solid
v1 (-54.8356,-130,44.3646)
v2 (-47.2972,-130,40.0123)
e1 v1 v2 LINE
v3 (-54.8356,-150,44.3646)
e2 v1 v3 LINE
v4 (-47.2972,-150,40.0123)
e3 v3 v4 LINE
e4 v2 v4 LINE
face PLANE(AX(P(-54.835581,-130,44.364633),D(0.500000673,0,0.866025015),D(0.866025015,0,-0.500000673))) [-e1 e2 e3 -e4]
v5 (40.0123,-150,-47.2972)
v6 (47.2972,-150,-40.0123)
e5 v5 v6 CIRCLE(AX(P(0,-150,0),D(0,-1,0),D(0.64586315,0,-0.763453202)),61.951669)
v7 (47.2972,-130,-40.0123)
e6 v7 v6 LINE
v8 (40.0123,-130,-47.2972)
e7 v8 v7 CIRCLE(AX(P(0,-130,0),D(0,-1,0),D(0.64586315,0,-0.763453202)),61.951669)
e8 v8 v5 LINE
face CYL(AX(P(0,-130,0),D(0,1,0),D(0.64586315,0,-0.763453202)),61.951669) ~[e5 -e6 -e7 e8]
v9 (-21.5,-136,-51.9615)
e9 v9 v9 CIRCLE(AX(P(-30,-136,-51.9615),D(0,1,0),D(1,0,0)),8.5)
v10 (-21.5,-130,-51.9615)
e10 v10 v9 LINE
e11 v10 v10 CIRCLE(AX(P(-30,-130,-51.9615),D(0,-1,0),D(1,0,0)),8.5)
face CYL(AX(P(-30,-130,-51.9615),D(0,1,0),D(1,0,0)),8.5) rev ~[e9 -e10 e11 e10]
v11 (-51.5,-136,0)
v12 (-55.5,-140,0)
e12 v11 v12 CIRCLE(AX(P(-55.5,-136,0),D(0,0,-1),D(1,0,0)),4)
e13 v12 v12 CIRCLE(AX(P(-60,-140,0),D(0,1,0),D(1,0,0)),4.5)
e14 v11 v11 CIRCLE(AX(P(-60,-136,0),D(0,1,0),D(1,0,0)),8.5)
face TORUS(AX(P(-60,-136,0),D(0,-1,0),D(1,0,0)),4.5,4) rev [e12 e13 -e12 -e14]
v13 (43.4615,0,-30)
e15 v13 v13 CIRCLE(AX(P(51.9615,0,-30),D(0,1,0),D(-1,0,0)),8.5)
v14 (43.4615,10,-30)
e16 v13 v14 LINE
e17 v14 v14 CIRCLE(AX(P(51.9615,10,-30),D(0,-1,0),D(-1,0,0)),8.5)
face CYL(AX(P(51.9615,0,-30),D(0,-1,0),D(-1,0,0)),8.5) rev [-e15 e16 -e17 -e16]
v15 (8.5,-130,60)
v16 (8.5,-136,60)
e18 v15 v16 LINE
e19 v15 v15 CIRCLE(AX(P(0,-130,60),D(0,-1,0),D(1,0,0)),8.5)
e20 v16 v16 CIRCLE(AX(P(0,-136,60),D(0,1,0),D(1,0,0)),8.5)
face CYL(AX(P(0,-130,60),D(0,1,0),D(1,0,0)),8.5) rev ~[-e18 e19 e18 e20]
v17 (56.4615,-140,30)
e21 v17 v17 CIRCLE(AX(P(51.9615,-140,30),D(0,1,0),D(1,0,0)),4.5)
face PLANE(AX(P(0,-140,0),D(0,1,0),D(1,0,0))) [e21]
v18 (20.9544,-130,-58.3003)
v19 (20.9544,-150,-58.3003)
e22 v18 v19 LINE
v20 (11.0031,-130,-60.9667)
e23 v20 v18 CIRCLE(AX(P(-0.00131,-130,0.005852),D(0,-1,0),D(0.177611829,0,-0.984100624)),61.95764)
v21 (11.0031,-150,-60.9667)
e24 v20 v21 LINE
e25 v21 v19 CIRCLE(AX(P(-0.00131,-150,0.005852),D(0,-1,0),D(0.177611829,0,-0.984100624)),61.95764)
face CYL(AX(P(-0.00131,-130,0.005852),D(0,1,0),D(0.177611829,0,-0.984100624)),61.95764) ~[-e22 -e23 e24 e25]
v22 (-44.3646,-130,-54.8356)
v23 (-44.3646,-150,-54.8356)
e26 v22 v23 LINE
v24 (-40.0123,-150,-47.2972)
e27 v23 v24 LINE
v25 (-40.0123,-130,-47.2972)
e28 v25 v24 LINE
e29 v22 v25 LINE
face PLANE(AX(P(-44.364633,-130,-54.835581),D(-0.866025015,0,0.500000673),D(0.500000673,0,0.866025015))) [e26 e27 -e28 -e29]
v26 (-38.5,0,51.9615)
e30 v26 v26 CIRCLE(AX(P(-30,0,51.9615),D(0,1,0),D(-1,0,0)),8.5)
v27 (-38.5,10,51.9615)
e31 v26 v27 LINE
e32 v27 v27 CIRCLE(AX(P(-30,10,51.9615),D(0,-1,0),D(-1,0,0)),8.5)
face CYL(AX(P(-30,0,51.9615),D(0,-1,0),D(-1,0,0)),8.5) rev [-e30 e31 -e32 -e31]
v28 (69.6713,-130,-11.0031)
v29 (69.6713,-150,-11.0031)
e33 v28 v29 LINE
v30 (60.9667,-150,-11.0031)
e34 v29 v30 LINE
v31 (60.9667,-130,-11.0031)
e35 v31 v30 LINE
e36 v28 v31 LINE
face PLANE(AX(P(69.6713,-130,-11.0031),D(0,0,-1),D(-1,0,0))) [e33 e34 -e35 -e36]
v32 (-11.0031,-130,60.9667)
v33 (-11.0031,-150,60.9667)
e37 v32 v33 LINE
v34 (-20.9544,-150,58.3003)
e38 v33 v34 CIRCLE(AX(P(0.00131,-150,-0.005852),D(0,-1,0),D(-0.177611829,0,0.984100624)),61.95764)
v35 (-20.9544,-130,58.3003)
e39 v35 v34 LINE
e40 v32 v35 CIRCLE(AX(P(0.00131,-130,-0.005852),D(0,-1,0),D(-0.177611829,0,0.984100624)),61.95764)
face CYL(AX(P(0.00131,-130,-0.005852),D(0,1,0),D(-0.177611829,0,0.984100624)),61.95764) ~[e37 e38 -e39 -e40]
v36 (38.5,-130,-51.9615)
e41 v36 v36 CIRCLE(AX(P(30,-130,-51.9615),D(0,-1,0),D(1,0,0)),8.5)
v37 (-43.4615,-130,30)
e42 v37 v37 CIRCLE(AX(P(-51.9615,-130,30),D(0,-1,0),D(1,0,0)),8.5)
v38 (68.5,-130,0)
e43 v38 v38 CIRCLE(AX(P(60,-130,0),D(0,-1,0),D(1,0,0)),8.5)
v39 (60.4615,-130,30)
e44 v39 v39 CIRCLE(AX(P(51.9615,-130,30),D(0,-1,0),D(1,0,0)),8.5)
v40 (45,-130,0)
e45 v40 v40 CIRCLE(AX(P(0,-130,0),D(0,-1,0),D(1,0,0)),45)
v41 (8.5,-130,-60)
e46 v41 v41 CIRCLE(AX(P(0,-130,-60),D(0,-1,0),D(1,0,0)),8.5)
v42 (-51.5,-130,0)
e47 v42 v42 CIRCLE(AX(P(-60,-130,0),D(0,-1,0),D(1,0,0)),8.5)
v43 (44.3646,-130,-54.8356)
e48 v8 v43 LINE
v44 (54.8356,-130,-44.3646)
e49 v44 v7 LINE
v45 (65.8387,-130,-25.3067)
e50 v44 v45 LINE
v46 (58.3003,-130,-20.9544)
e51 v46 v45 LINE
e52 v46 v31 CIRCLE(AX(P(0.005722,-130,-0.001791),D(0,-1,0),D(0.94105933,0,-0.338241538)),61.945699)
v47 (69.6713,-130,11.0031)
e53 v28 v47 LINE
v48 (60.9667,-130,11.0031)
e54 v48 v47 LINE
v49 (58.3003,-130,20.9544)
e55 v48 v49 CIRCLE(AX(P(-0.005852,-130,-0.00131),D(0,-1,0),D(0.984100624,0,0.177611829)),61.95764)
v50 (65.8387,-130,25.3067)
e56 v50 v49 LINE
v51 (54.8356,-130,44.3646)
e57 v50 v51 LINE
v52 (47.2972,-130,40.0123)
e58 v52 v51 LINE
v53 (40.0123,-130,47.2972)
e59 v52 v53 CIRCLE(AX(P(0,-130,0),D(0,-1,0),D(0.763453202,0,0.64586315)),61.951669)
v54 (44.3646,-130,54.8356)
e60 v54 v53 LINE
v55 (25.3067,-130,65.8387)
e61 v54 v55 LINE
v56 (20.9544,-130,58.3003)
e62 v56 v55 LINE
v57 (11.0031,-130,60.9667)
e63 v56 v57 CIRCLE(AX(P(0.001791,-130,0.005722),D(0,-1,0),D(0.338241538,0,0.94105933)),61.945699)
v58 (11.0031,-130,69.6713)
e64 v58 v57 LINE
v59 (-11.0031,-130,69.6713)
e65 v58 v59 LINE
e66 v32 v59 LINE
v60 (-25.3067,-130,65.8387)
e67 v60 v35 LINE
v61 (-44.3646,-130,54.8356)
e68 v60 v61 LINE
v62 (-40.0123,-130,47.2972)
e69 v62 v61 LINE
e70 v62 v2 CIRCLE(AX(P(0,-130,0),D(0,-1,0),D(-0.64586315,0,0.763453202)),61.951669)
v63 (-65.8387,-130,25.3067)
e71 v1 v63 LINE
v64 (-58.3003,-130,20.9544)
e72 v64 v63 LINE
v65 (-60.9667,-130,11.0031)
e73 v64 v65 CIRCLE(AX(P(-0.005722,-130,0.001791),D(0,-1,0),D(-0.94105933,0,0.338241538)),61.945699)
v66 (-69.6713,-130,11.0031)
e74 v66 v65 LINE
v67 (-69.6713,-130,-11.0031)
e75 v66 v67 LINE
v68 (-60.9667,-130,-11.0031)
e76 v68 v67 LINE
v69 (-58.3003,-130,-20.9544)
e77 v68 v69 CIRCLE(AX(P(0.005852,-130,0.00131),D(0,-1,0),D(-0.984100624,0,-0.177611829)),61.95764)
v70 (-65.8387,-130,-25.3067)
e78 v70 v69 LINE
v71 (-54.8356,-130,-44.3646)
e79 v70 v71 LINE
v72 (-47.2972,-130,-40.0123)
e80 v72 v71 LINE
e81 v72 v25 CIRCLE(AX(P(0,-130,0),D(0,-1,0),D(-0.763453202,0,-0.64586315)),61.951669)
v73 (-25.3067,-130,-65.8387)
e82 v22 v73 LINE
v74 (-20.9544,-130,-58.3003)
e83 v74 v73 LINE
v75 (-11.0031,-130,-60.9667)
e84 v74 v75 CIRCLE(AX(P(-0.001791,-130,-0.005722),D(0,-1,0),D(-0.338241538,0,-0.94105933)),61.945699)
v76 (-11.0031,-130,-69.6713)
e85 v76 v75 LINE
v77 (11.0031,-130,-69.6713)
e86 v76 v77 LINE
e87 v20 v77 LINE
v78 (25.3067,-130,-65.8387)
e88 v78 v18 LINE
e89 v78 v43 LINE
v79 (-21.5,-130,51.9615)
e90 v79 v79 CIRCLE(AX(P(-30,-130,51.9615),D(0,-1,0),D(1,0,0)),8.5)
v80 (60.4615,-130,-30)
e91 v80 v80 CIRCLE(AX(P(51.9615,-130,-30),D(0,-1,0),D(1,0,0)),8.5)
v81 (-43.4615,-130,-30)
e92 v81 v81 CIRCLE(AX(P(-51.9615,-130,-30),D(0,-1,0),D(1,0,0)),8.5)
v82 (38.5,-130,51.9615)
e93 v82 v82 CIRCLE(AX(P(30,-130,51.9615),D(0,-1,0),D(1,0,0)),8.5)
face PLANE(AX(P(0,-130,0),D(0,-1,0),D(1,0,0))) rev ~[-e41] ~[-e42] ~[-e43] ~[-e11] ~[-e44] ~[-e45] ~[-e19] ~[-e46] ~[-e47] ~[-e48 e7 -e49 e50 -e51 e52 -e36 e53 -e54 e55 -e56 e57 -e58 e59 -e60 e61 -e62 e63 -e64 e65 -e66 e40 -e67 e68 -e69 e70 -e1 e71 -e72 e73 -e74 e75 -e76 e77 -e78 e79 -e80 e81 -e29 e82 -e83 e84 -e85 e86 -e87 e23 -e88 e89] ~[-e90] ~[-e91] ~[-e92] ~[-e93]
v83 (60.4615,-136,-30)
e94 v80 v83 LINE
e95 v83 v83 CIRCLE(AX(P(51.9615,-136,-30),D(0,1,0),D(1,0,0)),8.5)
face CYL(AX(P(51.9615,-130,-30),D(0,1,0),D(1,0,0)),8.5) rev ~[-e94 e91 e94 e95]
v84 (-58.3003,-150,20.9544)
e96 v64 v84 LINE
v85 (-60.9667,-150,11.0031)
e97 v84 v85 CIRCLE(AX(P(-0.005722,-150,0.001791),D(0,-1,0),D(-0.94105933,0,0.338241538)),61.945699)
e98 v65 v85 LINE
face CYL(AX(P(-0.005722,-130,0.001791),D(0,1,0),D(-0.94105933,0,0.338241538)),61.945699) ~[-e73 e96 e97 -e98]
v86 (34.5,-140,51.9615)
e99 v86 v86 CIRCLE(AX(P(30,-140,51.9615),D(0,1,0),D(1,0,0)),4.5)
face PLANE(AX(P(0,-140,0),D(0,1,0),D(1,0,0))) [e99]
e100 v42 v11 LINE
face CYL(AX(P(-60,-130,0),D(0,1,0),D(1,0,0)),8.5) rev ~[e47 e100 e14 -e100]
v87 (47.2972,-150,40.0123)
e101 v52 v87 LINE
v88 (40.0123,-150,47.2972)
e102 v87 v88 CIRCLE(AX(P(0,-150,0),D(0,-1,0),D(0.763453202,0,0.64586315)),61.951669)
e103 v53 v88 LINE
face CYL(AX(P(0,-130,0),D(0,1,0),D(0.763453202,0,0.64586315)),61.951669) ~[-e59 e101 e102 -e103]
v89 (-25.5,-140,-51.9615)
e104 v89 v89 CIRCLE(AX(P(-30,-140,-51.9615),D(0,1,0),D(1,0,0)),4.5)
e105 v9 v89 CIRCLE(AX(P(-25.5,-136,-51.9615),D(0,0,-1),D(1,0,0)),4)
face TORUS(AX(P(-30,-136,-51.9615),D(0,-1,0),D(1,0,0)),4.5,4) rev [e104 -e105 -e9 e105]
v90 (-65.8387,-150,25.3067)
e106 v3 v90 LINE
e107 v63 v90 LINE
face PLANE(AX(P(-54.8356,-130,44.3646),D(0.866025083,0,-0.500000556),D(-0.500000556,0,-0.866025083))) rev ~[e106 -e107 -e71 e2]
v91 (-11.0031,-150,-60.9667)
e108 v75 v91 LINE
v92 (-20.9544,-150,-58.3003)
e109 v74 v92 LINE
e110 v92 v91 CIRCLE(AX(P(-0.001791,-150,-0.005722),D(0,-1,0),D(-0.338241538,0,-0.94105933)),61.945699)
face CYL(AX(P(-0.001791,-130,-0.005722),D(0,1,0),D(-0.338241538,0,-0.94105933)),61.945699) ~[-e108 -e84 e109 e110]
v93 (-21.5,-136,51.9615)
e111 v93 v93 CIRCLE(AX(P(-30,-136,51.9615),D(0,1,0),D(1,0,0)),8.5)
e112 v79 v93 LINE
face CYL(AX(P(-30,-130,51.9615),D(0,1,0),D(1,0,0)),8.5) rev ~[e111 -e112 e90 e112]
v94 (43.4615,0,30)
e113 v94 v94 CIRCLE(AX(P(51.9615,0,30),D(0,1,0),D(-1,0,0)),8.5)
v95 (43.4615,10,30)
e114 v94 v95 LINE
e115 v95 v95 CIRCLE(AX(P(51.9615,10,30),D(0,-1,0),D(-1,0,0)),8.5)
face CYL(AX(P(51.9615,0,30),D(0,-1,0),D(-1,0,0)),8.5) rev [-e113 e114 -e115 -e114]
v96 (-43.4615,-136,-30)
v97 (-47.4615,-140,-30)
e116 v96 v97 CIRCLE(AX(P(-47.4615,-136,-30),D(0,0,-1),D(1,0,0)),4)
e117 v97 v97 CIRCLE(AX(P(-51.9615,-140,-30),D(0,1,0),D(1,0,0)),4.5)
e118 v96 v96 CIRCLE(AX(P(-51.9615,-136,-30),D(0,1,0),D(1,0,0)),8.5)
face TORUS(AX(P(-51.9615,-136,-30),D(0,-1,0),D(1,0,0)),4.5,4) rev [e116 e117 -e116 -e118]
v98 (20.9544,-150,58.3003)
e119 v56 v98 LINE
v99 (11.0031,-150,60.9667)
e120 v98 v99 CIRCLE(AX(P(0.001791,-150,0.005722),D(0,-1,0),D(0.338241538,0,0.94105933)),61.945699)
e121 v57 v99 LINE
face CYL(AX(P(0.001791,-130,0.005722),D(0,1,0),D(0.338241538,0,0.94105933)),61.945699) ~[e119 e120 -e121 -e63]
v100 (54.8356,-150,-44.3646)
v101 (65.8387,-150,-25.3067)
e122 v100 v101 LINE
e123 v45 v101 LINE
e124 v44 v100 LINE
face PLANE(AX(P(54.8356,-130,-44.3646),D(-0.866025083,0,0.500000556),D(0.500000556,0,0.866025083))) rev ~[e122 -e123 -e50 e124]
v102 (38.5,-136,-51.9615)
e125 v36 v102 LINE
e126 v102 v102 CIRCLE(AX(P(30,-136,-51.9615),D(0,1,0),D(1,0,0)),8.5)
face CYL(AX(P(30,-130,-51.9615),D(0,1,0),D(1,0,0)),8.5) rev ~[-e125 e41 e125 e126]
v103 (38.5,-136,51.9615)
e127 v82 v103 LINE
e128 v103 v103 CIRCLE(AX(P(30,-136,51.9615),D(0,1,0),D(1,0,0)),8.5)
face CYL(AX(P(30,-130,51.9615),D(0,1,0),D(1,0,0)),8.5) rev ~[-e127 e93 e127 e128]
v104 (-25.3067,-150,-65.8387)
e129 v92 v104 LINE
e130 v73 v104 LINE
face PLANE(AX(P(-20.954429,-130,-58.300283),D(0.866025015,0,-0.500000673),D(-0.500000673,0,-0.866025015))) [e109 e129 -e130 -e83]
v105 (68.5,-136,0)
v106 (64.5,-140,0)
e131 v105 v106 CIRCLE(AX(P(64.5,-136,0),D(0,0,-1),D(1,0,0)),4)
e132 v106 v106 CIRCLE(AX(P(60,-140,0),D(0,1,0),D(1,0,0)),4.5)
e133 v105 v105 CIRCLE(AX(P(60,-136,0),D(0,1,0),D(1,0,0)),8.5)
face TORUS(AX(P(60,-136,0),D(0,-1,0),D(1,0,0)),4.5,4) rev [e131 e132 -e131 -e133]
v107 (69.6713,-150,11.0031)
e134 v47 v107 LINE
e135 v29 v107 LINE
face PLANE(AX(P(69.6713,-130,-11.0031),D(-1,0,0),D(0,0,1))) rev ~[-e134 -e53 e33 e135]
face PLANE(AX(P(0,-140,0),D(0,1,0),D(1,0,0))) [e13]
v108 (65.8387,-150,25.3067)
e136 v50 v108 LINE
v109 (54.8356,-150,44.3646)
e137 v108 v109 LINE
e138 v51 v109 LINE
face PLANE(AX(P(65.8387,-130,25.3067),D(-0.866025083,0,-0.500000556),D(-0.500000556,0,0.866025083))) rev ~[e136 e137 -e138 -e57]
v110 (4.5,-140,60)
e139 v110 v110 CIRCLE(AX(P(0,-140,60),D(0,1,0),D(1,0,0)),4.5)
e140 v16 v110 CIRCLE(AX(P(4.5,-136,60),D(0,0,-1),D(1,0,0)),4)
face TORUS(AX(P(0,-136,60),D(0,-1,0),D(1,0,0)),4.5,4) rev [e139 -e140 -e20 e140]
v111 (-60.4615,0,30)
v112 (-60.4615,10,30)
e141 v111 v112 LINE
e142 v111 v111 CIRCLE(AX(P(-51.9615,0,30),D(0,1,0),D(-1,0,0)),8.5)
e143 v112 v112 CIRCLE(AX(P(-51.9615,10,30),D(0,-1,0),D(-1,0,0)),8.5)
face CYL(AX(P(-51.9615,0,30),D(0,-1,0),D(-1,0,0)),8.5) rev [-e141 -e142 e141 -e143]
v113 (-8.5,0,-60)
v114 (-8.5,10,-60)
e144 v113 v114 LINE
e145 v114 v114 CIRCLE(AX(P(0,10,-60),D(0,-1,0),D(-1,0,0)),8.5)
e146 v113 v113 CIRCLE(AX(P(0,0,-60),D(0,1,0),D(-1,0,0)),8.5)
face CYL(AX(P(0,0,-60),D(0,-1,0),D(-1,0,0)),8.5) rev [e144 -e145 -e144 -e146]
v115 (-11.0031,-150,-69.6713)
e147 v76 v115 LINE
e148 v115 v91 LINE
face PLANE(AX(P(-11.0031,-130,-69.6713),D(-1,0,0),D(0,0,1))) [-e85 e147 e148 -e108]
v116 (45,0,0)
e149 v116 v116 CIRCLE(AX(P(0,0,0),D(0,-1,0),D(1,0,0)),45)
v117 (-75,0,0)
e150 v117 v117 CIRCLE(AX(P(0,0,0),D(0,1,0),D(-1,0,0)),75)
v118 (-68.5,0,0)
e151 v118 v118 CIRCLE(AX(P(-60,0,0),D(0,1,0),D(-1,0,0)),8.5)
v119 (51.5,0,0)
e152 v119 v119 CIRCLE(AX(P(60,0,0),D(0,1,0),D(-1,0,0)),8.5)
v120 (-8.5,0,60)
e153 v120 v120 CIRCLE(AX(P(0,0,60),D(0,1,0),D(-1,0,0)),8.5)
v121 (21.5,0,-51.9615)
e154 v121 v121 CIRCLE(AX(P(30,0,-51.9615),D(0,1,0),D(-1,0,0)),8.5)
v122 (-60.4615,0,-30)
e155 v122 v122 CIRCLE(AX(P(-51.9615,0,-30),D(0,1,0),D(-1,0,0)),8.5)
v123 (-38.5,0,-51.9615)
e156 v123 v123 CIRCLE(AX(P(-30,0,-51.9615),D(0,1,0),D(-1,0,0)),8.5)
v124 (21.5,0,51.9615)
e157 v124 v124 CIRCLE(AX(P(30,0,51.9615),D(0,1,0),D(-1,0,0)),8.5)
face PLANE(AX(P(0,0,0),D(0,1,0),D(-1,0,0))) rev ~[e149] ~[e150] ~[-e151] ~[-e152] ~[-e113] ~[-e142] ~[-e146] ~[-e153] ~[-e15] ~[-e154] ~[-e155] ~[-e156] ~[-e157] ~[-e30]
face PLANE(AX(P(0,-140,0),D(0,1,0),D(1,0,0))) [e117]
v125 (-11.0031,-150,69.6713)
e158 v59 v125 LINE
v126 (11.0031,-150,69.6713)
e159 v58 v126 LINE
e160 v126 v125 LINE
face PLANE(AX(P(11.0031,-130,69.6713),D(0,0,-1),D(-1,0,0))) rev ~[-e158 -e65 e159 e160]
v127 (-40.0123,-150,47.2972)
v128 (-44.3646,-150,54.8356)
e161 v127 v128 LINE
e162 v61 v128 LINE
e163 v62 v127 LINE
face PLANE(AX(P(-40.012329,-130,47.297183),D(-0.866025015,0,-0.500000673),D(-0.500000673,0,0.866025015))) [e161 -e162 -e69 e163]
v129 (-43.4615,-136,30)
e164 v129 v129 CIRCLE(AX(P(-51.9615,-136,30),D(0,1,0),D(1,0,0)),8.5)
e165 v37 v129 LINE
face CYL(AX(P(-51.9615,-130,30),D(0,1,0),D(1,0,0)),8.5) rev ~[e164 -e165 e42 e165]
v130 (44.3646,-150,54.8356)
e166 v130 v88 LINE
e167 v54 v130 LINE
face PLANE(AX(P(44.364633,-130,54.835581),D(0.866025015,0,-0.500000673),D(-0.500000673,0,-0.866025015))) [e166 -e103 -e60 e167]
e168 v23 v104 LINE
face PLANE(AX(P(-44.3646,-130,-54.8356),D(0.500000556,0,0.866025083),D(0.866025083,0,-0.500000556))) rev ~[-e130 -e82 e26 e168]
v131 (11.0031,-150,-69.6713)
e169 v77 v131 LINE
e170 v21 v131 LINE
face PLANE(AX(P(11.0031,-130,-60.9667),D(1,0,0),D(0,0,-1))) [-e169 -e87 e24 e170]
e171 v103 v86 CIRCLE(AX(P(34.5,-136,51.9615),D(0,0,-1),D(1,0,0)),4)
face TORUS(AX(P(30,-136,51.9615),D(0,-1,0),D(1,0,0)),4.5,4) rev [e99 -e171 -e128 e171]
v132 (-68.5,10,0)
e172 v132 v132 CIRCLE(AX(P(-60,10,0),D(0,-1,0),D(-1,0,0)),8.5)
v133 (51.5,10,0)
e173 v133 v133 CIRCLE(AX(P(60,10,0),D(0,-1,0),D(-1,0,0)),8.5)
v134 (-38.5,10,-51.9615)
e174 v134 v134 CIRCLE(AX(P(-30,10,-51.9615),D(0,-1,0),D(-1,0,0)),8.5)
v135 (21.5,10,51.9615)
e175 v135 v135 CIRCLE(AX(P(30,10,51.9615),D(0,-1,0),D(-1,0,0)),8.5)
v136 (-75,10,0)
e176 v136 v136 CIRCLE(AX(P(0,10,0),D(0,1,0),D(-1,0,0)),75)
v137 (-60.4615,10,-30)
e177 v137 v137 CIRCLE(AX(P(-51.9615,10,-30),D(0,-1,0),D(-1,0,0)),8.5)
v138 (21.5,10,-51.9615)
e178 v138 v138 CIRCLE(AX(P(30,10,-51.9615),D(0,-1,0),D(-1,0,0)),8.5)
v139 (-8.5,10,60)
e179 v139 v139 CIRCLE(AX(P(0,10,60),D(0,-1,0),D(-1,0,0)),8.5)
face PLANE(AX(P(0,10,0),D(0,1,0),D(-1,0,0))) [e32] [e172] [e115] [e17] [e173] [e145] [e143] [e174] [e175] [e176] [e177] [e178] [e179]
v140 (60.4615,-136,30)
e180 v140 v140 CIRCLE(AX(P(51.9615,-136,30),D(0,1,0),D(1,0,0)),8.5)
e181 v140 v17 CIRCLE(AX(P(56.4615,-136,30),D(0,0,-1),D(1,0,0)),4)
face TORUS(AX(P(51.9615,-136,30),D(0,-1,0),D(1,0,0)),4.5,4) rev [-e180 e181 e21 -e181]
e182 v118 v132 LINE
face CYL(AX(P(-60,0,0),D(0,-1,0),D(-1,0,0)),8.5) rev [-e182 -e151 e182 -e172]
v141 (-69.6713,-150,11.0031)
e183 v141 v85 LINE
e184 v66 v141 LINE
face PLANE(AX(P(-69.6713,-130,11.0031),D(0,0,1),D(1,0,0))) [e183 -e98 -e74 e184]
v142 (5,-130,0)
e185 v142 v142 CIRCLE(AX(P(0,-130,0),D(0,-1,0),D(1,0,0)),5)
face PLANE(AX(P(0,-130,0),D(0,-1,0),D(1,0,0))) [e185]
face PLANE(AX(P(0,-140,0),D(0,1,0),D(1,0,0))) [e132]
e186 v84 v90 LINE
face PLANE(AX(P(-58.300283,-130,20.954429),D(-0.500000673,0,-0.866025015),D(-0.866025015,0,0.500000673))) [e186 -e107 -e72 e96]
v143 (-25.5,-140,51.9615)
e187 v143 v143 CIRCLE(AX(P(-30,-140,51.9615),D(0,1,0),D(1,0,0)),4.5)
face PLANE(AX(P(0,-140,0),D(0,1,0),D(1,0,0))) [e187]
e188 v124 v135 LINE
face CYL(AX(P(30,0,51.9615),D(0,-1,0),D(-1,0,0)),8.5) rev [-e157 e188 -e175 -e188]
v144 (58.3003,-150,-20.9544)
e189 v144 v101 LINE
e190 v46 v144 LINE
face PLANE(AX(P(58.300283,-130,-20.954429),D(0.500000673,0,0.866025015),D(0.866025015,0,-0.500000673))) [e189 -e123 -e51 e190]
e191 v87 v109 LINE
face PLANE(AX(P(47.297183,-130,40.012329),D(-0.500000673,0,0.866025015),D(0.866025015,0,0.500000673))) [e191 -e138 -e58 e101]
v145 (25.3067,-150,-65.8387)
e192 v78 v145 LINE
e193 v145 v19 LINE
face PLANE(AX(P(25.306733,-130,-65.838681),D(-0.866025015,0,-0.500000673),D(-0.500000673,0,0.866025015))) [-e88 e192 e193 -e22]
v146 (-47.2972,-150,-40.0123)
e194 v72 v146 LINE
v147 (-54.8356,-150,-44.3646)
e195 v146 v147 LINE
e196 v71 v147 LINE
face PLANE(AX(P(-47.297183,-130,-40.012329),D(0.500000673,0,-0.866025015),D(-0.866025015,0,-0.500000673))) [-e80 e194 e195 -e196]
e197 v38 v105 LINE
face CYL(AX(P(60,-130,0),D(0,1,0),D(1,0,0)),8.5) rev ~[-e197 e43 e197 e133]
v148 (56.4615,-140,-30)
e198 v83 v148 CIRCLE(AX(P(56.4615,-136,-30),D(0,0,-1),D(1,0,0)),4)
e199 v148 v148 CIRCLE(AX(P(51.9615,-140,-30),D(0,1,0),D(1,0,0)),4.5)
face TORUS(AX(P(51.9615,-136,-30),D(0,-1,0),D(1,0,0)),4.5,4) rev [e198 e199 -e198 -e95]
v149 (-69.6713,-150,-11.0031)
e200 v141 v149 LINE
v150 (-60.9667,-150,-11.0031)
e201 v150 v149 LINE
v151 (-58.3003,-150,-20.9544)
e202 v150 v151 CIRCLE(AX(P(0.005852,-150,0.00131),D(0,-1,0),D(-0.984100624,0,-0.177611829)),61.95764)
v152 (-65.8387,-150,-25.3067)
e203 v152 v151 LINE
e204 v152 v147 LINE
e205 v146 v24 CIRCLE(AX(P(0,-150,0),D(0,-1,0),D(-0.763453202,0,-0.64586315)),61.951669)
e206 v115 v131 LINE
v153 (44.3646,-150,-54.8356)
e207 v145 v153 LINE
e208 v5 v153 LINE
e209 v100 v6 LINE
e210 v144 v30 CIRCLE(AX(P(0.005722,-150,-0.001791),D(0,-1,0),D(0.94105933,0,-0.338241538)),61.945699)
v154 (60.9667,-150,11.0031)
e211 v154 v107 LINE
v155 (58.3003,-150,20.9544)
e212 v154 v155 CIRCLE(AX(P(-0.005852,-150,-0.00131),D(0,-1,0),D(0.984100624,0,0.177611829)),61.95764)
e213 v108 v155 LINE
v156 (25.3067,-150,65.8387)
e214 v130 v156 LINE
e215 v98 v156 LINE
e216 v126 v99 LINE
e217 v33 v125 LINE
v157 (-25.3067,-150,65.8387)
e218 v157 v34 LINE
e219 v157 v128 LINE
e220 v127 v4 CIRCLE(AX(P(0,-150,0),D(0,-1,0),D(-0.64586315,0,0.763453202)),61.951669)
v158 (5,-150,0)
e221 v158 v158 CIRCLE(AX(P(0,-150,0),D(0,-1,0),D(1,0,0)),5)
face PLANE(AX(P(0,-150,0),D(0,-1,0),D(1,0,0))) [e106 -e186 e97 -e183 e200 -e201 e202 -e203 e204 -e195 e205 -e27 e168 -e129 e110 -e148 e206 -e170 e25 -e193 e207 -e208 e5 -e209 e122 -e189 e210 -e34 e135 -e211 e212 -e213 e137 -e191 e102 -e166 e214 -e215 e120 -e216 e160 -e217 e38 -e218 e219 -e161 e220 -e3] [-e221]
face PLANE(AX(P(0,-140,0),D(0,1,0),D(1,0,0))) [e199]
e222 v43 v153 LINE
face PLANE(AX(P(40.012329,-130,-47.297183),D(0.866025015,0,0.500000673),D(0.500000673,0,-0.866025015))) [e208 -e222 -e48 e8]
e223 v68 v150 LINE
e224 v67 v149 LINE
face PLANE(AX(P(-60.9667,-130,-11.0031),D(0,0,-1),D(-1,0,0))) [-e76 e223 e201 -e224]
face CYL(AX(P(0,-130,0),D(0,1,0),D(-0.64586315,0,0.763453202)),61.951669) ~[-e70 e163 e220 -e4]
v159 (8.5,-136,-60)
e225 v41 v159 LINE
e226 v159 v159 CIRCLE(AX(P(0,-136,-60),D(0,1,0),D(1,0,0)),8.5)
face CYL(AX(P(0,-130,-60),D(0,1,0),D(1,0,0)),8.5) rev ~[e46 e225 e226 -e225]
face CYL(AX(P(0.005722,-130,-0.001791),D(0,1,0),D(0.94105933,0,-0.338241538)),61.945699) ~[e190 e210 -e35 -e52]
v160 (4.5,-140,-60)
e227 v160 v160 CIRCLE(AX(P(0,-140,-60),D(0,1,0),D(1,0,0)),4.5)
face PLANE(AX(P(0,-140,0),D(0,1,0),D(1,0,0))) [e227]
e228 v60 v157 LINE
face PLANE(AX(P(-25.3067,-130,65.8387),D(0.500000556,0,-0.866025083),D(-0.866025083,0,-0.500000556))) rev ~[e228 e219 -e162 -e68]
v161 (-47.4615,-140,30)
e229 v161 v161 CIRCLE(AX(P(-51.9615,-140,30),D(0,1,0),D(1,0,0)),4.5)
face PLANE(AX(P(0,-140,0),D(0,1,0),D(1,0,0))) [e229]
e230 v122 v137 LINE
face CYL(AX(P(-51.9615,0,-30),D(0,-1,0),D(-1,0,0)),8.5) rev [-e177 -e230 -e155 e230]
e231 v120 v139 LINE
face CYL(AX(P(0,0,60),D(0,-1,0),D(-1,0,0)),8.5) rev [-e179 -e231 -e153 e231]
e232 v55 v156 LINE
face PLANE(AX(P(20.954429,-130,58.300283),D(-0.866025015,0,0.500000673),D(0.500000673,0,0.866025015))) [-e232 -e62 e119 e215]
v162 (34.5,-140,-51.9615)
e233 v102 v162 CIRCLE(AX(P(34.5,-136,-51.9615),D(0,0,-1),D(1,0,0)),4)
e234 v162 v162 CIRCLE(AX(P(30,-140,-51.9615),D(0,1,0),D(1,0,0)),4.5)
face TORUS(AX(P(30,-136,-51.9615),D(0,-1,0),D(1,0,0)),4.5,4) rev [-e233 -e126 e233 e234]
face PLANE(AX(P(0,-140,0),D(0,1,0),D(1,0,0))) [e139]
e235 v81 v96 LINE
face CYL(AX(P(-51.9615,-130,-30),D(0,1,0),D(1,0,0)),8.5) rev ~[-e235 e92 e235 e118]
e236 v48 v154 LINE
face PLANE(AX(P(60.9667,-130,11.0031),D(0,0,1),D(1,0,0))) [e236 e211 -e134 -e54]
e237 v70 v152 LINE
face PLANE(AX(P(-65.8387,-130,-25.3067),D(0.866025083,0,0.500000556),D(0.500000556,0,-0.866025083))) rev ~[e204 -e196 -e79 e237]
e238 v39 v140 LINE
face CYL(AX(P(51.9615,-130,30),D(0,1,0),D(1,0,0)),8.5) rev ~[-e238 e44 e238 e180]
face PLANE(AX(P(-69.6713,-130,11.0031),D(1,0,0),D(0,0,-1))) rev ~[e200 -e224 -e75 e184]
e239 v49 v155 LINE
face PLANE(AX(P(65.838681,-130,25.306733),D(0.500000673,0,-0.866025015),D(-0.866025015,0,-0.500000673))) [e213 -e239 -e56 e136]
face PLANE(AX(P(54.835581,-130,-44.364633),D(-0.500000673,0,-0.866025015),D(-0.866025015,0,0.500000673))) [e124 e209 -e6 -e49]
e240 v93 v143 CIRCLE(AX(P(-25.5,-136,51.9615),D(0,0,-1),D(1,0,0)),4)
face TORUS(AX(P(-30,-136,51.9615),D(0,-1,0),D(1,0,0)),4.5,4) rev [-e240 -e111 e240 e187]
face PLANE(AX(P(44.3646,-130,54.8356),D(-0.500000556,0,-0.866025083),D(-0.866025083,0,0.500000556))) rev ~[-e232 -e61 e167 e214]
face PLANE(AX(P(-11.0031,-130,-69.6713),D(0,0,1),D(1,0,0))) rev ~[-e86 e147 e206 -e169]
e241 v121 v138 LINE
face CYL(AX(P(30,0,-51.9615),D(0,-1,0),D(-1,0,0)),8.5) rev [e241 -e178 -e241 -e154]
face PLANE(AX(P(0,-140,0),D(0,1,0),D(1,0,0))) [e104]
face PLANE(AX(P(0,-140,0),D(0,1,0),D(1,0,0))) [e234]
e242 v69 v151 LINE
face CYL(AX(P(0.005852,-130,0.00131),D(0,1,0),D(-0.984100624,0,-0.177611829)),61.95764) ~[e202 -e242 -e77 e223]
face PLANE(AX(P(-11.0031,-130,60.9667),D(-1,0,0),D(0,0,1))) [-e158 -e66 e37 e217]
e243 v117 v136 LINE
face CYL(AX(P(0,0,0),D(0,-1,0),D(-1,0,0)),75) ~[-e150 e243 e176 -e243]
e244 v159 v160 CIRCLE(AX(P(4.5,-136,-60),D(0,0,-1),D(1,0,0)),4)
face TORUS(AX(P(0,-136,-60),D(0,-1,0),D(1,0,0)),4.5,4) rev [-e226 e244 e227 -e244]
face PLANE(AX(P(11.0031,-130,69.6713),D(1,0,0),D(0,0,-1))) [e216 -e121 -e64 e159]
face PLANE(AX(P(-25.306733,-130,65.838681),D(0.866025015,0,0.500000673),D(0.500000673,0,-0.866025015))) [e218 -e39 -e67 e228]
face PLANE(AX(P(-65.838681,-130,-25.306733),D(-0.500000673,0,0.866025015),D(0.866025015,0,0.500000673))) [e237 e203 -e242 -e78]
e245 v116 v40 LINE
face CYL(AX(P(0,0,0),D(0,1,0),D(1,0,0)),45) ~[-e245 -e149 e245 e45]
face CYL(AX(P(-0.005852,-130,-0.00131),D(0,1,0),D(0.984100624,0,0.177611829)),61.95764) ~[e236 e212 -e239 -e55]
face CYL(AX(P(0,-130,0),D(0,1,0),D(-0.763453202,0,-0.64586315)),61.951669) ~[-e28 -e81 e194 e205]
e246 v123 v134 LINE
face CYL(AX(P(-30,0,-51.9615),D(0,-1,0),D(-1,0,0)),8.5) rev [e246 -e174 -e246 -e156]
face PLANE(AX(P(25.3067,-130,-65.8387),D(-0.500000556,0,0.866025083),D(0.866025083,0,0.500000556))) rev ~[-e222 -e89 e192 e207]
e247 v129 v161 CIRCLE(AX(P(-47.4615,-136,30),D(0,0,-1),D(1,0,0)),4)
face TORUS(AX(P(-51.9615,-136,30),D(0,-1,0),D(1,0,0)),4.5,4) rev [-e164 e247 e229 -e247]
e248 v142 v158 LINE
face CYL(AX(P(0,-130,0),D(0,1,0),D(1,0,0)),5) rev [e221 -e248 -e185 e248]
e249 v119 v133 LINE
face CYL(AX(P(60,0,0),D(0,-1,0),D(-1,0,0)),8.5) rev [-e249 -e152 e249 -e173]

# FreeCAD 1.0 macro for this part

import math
import FreeCAD as App
import Part
import Sketcher
Q = App.Units.Quantity


def edges_at(feature, points):
    """Names of the edges that pass closest to the given points."""
    edges = feature.Shape.Edges
    near = lambda p: min(range(len(edges)), key=lambda i: edges[i].distToShape(Part.Vertex(*p))[0])
    return sorted({f"Edge{near(p) + 1}" for p in points})

doc = App.newDocument("Part")
body = doc.addObject("PartDesign::Body", "Body")

sketch1 = doc.addObject("Sketcher::SketchObject", "Sketch")
body.addObject(sketch1)
sketch1.AttachmentSupport = (doc.XZ_Plane, [""])
sketch1.MapMode = "FlatFace"
sketch1.addGeometry([
    Part.Circle(App.Vector(0, 0, 0), App.Vector(0, 0, 1), 75),
    Part.Circle(App.Vector(-51.9615, 30, 0), App.Vector(0, 0, 1), 8.5),
    Part.Circle(App.Vector(-30, 51.9615, 0), App.Vector(0, 0, 1), 8.5),
    Part.Circle(App.Vector(0, 60, 0), App.Vector(0, 0, 1), 8.5),
    Part.Circle(App.Vector(30, 51.9615, 0), App.Vector(0, 0, 1), 8.5),
    Part.Circle(App.Vector(51.9615, 30, 0), App.Vector(0, 0, 1), 8.5),
    Part.Circle(App.Vector(60, 0, 0), App.Vector(0, 0, 1), 8.5),
    Part.Circle(App.Vector(51.9615, -30, 0), App.Vector(0, 0, 1), 8.5),
    Part.Circle(App.Vector(30, -51.9615, 0), App.Vector(0, 0, 1), 8.5),
    Part.Circle(App.Vector(0, -60, 0), App.Vector(0, 0, 1), 8.5),
    Part.Circle(App.Vector(-30, -51.9615, 0), App.Vector(0, 0, 1), 8.5),
    Part.Circle(App.Vector(-51.9615, -30, 0), App.Vector(0, 0, 1), 8.5),
    Part.Circle(App.Vector(-60, 0, 0), App.Vector(0, 0, 1), 8.5),
], False)
sketch1.addConstraint([
    Sketcher.Constraint("Coincident", 0, 3, -1, 1),
    Sketcher.Constraint("Equal", 1, 2),
    Sketcher.Constraint("Equal", 2, 3),
    Sketcher.Constraint("Equal", 3, 4),
    Sketcher.Constraint("Equal", 4, 5),
    Sketcher.Constraint("Equal", 5, 6),
    Sketcher.Constraint("Equal", 6, 7),
    Sketcher.Constraint("Equal", 7, 8),
    Sketcher.Constraint("Equal", 8, 9),
    Sketcher.Constraint("Equal", 9, 10),
    Sketcher.Constraint("Equal", 10, 11),
    Sketcher.Constraint("Equal", 11, 12),
    Sketcher.Constraint("Symmetric", 1, 3, 7, 3, -1, 1),
    Sketcher.Constraint("Symmetric", 2, 3, 8, 3, -1, 1),
    Sketcher.Constraint("Symmetric", 3, 3, 9, 3, -1, 1),
    Sketcher.Constraint("Symmetric", 4, 3, 10, 3, -1, 1),
    Sketcher.Constraint("Symmetric", 5, 3, 11, 3, -1, 1),
    Sketcher.Constraint("Symmetric", 6, 3, 12, 3, -1, 1),
    Sketcher.Constraint("Symmetric", 2, 3, 4, 3, -2),
    Sketcher.Constraint("Symmetric", 1, 3, 5, 3, -2),
    Sketcher.Constraint("PointOnObject", 3, 3, -2),
    Sketcher.Constraint("PointOnObject", 6, 3, -1),
    Sketcher.Constraint("Diameter", 0, Q("150 mm")),
    Sketcher.Constraint("Diameter", 1, Q("17 mm")),
    Sketcher.Constraint("DistanceY", -1, 1, 1, 3, Q("30 mm")),
    Sketcher.Constraint("DistanceX", 2, 3, -1, 1, Q("30 mm")),
    Sketcher.Constraint("DistanceY", -1, 1, 3, 3, Q("60 mm")),
    Sketcher.Constraint("DistanceX", -1, 1, 6, 3, Q("60 mm")),
    Sketcher.Constraint("DistanceX", 1, 3, 5, 3, Q("103.923 mm")),
    Sketcher.Constraint("DistanceY", 8, 3, 4, 3, Q("103.923 mm")),
])
pad1 = doc.addObject("PartDesign::Pad", "Pad")
body.addObject(pad1)
pad1.Profile = sketch1
pad1.Length = 10
pad1.Reversed = True

sketch2 = doc.addObject("Sketcher::SketchObject", "Sketch001")
body.addObject(sketch2)
sketch2.AttachmentSupport = (doc.XZ_Plane, [""])
sketch2.MapMode = "FlatFace"
sketch2.addGeometry(Part.Circle(App.Vector(0, 0, 0), App.Vector(0, 0, 1), 45), False)
sketch2.addConstraint([
    Sketcher.Constraint("Coincident", 0, 3, -1, 1),
    Sketcher.Constraint("Diameter", 0, Q("90 mm")),
])
pad2 = doc.addObject("PartDesign::Pad", "Pad001")
body.addObject(pad2)
pad2.Profile = sketch2
pad2.Length = 130

sketch3 = doc.addObject("Sketcher::SketchObject", "Sketch002")
body.addObject(sketch3)
sketch3.AttachmentSupport = (doc.XZ_Plane, [""])
sketch3.MapMode = "FlatFace"
sketch3.AttachmentOffset = App.Placement(App.Vector(0, 0, 130), App.Rotation())
sketch3.addGeometry([
    Part.LineSegment(App.Vector(11.0031, 69.6713, 0), App.Vector(-11.0031, 69.6713, 0)),
    Part.LineSegment(App.Vector(-11.0031, 69.6713, 0), App.Vector(-11.0031, 60.9667, 0)),
    Part.ArcOfCircle(Part.Circle(App.Vector(0.00131, -0.005852, 0), App.Vector(0, 0, 1), 61.95764), math.radians(100.230686), math.radians(109.768854)),
    Part.LineSegment(App.Vector(-20.954429, 58.300283, 0), App.Vector(-25.306733, 65.838681, 0)),
    Part.LineSegment(App.Vector(-25.3067, 65.8387, 0), App.Vector(-44.3646, 54.8356, 0)),
    Part.LineSegment(App.Vector(-44.364633, 54.835581, 0), App.Vector(-40.012329, 47.297183, 0)),
    Part.ArcOfCircle(Part.Circle(App.Vector(0, 0, 0), App.Vector(0, 0, 1), 61.951669), math.radians(130.230422), math.radians(139.769578)),
    Part.LineSegment(App.Vector(-47.297183, 40.012329, 0), App.Vector(-54.835581, 44.364633, 0)),
    Part.LineSegment(App.Vector(-54.8356, 44.3646, 0), App.Vector(-65.8387, 25.3067, 0)),
    Part.LineSegment(App.Vector(-65.838681, 25.306733, 0), App.Vector(-58.300283, 20.954429, 0)),
    Part.ArcOfCircle(Part.Circle(App.Vector(-0.005722, 0.001791, 0), App.Vector(0, 0, 1), 61.945699), math.radians(160.230225), math.radians(169.770235)),
    Part.LineSegment(App.Vector(-60.9667, 11.0031, 0), App.Vector(-69.6713, 11.0031, 0)),
    Part.LineSegment(App.Vector(-69.6713, 11.0031, 0), App.Vector(-69.6713, -11.0031, 0)),
    Part.LineSegment(App.Vector(-69.6713, -11.0031, 0), App.Vector(-60.9667, -11.0031, 0)),
    Part.ArcOfCircle(Part.Circle(App.Vector(0.005852, 0.00131, 0), App.Vector(0, 0, 1), 61.95764), math.radians(-169.769314), math.radians(-160.231146)),
    Part.LineSegment(App.Vector(-58.300283, -20.954429, 0), App.Vector(-65.838681, -25.306733, 0)),
    Part.LineSegment(App.Vector(-65.8387, -25.3067, 0), App.Vector(-54.8356, -44.3646, 0)),
    Part.LineSegment(App.Vector(-54.835581, -44.364633, 0), App.Vector(-47.297183, -40.012329, 0)),
    Part.ArcOfCircle(Part.Circle(App.Vector(0, 0, 0), App.Vector(0, 0, 1), 61.951669), math.radians(-139.769578), math.radians(-130.230422)),
    Part.LineSegment(App.Vector(-40.012329, -47.297183, 0), App.Vector(-44.364633, -54.835581, 0)),
    Part.LineSegment(App.Vector(-44.3646, -54.8356, 0), App.Vector(-25.3067, -65.8387, 0)),
    Part.LineSegment(App.Vector(-25.306733, -65.838681, 0), App.Vector(-20.954429, -58.300283, 0)),
    Part.ArcOfCircle(Part.Circle(App.Vector(-0.001791, -0.005722, 0), App.Vector(0, 0, 1), 61.945699), math.radians(-109.769775), math.radians(-100.229765)),
    Part.LineSegment(App.Vector(-11.0031, -60.9667, 0), App.Vector(-11.0031, -69.6713, 0)),
    Part.LineSegment(App.Vector(-11.0031, -69.6713, 0), App.Vector(11.0031, -69.6713, 0)),
    Part.LineSegment(App.Vector(11.0031, -69.6713, 0), App.Vector(11.0031, -60.9667, 0)),
    Part.ArcOfCircle(Part.Circle(App.Vector(-0.00131, 0.005852, 0), App.Vector(0, 0, 1), 61.95764), math.radians(-79.769314), math.radians(-70.231146)),
    Part.LineSegment(App.Vector(20.954429, -58.300283, 0), App.Vector(25.306733, -65.838681, 0)),
    Part.LineSegment(App.Vector(25.3067, -65.8387, 0), App.Vector(44.3646, -54.8356, 0)),
    Part.LineSegment(App.Vector(44.364633, -54.835581, 0), App.Vector(40.012329, -47.297183, 0)),
    Part.ArcOfCircle(Part.Circle(App.Vector(0, 0, 0), App.Vector(0, 0, 1), 61.951669), math.radians(-49.769578), math.radians(-40.230422)),
    Part.LineSegment(App.Vector(47.297183, -40.012329, 0), App.Vector(54.835581, -44.364633, 0)),
    Part.LineSegment(App.Vector(54.8356, -44.3646, 0), App.Vector(65.8387, -25.3067, 0)),
    Part.LineSegment(App.Vector(65.838681, -25.306733, 0), App.Vector(58.300283, -20.954429, 0)),
    Part.ArcOfCircle(Part.Circle(App.Vector(0.005722, -0.001791, 0), App.Vector(0, 0, 1), 61.945699), math.radians(-19.769775), math.radians(-10.229765)),
    Part.LineSegment(App.Vector(60.9667, -11.0031, 0), App.Vector(69.6713, -11.0031, 0)),
    Part.LineSegment(App.Vector(69.6713, -11.0031, 0), App.Vector(69.6713, 11.0031, 0)),
    Part.LineSegment(App.Vector(69.6713, 11.0031, 0), App.Vector(60.9667, 11.0031, 0)),
    Part.ArcOfCircle(Part.Circle(App.Vector(-0.005852, -0.00131, 0), App.Vector(0, 0, 1), 61.95764), math.radians(10.230686), math.radians(19.768854)),
    Part.LineSegment(App.Vector(58.300283, 20.954429, 0), App.Vector(65.838681, 25.306733, 0)),
    Part.LineSegment(App.Vector(65.8387, 25.3067, 0), App.Vector(54.8356, 44.3646, 0)),
    Part.LineSegment(App.Vector(54.835581, 44.364633, 0), App.Vector(47.297183, 40.012329, 0)),
    Part.ArcOfCircle(Part.Circle(App.Vector(0, 0, 0), App.Vector(0, 0, 1), 61.951669), math.radians(40.230422), math.radians(49.769578)),
    Part.LineSegment(App.Vector(40.012329, 47.297183, 0), App.Vector(44.364633, 54.835581, 0)),
    Part.LineSegment(App.Vector(44.3646, 54.8356, 0), App.Vector(25.3067, 65.8387, 0)),
    Part.LineSegment(App.Vector(25.306733, 65.838681, 0), App.Vector(20.954429, 58.300283, 0)),
    Part.ArcOfCircle(Part.Circle(App.Vector(0.001791, 0.005722, 0), App.Vector(0, 0, 1), 61.945699), math.radians(70.230225), math.radians(79.770235)),
    Part.LineSegment(App.Vector(11.0031, 60.9667, 0), App.Vector(11.0031, 69.6713, 0)),
    Part.Circle(App.Vector(0, 0, 0), App.Vector(0, 0, 1), 5),
], False)
sketch3.addConstraint([
    Sketcher.Constraint("Coincident", 0, 2, 1, 1),
    Sketcher.Constraint("Coincident", 1, 2, 2, 1),
    Sketcher.Constraint("Coincident", 2, 2, 3, 1),
    Sketcher.Constraint("Coincident", 3, 2, 4, 1),
    Sketcher.Constraint("Coincident", 4, 2, 5, 1),
    Sketcher.Constraint("Coincident", 5, 2, 6, 1),
    Sketcher.Constraint("Coincident", 6, 2, 7, 1),
    Sketcher.Constraint("Coincident", 7, 2, 8, 1),
    Sketcher.Constraint("Coincident", 8, 2, 9, 1),
    Sketcher.Constraint("Coincident", 9, 2, 10, 1),
    Sketcher.Constraint("Coincident", 10, 2, 11, 1),
    Sketcher.Constraint("Coincident", 11, 2, 12, 1),
    Sketcher.Constraint("Coincident", 12, 2, 13, 1),
    Sketcher.Constraint("Coincident", 13, 2, 14, 1),
    Sketcher.Constraint("Coincident", 14, 2, 15, 1),
    Sketcher.Constraint("Coincident", 15, 2, 16, 1),
    Sketcher.Constraint("Coincident", 16, 2, 17, 1),
    Sketcher.Constraint("Coincident", 17, 2, 18, 1),
    Sketcher.Constraint("Coincident", 18, 2, 19, 1),
    Sketcher.Constraint("Coincident", 19, 2, 20, 1),
    Sketcher.Constraint("Coincident", 20, 2, 21, 1),
    Sketcher.Constraint("Coincident", 21, 2, 22, 1),
    Sketcher.Constraint("Coincident", 22, 2, 23, 1),
    Sketcher.Constraint("Coincident", 23, 2, 24, 1),
    Sketcher.Constraint("Coincident", 24, 2, 25, 1),
    Sketcher.Constraint("Coincident", 25, 2, 26, 1),
    Sketcher.Constraint("Coincident", 26, 2, 27, 1),
    Sketcher.Constraint("Coincident", 27, 2, 28, 1),
    Sketcher.Constraint("Coincident", 28, 2, 29, 1),
    Sketcher.Constraint("Coincident", 29, 2, 30, 1),
    Sketcher.Constraint("Coincident", 30, 2, 31, 1),
    Sketcher.Constraint("Coincident", 31, 2, 32, 1),
    Sketcher.Constraint("Coincident", 32, 2, 33, 1),
    Sketcher.Constraint("Coincident", 33, 2, 34, 1),
    Sketcher.Constraint("Coincident", 34, 2, 35, 1),
    Sketcher.Constraint("Coincident", 35, 2, 36, 1),
    Sketcher.Constraint("Coincident", 36, 2, 37, 1),
    Sketcher.Constraint("Coincident", 37, 2, 38, 1),
    Sketcher.Constraint("Coincident", 38, 2, 39, 1),
    Sketcher.Constraint("Coincident", 39, 2, 40, 1),
    Sketcher.Constraint("Coincident", 40, 2, 41, 1),
    Sketcher.Constraint("Coincident", 41, 2, 42, 1),
    Sketcher.Constraint("Coincident", 42, 2, 43, 1),
    Sketcher.Constraint("Coincident", 43, 2, 44, 1),
    Sketcher.Constraint("Coincident", 44, 2, 45, 1),
    Sketcher.Constraint("Coincident", 45, 2, 46, 1),
    Sketcher.Constraint("Coincident", 46, 2, 47, 1),
    Sketcher.Constraint("Coincident", 47, 2, 0, 1),
    Sketcher.Constraint("Horizontal", 0),
    Sketcher.Constraint("Vertical", 1),
    Sketcher.Constraint("Horizontal", 11),
    Sketcher.Constraint("Vertical", 12),
    Sketcher.Constraint("Horizontal", 13),
    Sketcher.Constraint("Vertical", 23),
    Sketcher.Constraint("Horizontal", 24),
    Sketcher.Constraint("Vertical", 25),
    Sketcher.Constraint("Horizontal", 35),
    Sketcher.Constraint("Vertical", 36),
    Sketcher.Constraint("Horizontal", 37),
    Sketcher.Constraint("Vertical", 47),
    Sketcher.Constraint("Coincident", 6, 3, -1, 1),
    Sketcher.Constraint("Coincident", 18, 3, -1, 1),
    Sketcher.Constraint("Coincident", 30, 3, -1, 1),
    Sketcher.Constraint("Coincident", 42, 3, -1, 1),
    Sketcher.Constraint("Coincident", 48, 3, -1, 1),
    Sketcher.Constraint("Equal", 2, 14),
    Sketcher.Constraint("Equal", 6, 18),
    Sketcher.Constraint("Equal", 10, 22),
    Sketcher.Constraint("Equal", 14, 26),
    Sketcher.Constraint("Equal", 18, 30),
    Sketcher.Constraint("Equal", 22, 34),
    Sketcher.Constraint("Equal", 26, 38),
    Sketcher.Constraint("Equal", 30, 42),
    Sketcher.Constraint("Equal", 34, 46),
    Sketcher.Constraint("Symmetric", 2, 3, 26, 3, -1, 1),
    Sketcher.Constraint("Symmetric", 10, 3, 34, 3, -1, 1),
    Sketcher.Constraint("Symmetric", 14, 3, 38, 3, -1, 1),
    Sketcher.Constraint("Symmetric", 22, 3, 46, 3, -1, 1),
    Sketcher.Constraint("Symmetric", 0, 2, 24, 2, -1, 1),
    Sketcher.Constraint("Symmetric", 3, 2, 27, 2, -1, 1),
    Sketcher.Constraint("Symmetric", 4, 2, 28, 2, -1, 1),
    Sketcher.Constraint("Symmetric", 7, 2, 31, 2, -1, 1),
    Sketcher.Constraint("Symmetric", 8, 2, 32, 2, -1, 1),
    Sketcher.Constraint("Symmetric", 11, 2, 35, 2, -1, 1),
    Sketcher.Constraint("Symmetric", 15, 2, 39, 2, -1, 1),
    Sketcher.Constraint("Symmetric", 16, 2, 40, 2, -1, 1),
    Sketcher.Constraint("Symmetric", 19, 2, 43, 2, -1, 1),
    Sketcher.Constraint("Symmetric", 20, 2, 44, 2, -1, 1),
    Sketcher.Constraint("Symmetric", 22, 2, 25, 2, -2),
    Sketcher.Constraint("Symmetric", 21, 2, 26, 2, -2),
    Sketcher.Constraint("Symmetric", 20, 2, 27, 2, -2),
    Sketcher.Constraint("Symmetric", 19, 2, 28, 2, -2),
    Sketcher.Constraint("Symmetric", 16, 2, 31, 2, -2),
    Sketcher.Constraint("Symmetric", 15, 2, 32, 2, -2),
    Sketcher.Constraint("Symmetric", 14, 2, 33, 2, -2),
    Sketcher.Constraint("Symmetric", 13, 2, 34, 2, -2),
    Sketcher.Constraint("Perpendicular", 3, 4),
    Sketcher.Constraint("Perpendicular", 4, 5),
    Sketcher.Constraint("Perpendicular", 7, 8),
    Sketcher.Constraint("Perpendicular", 8, 9),
    Sketcher.Constraint("Perpendicular", 5, 15),
    Sketcher.Constraint("Perpendicular", 15, 16),
    Sketcher.Constraint("Perpendicular", 16, 17),
    Sketcher.Constraint("Perpendicular", 9, 19),
    Sketcher.Constraint("Perpendicular", 20, 21),
    Sketcher.Constraint("Perpendicular", 28, 29),
    Sketcher.Constraint("Perpendicular", 21, 31),
    Sketcher.Constraint("Perpendicular", 29, 39),
    Sketcher.Constraint("Perpendicular", 40, 41),
    Sketcher.Constraint("Perpendicular", 33, 43),
    Sketcher.Constraint("Perpendicular", 44, 45),
    Sketcher.Constraint("Horizontal", 2, 3, 22, 3),
    Sketcher.Constraint("Horizontal", 11, 2, 36, 2),
    Sketcher.Constraint("Horizontal", 1, 2, 46, 2),
    Sketcher.Constraint("Vertical", 14, 3, 34, 3),
    Sketcher.Constraint("Equal", 37, 1),
    Sketcher.Constraint("Equal", 24, 12),
    Sketcher.Constraint("Equal", 3, 5),
    Sketcher.Constraint("Equal", 5, 7),
    Sketcher.Constraint("Equal", 4, 8),
    Sketcher.Constraint("Equal", 7, 9),
    Sketcher.Constraint("Diameter", 48, Q("10 mm")),
    Sketcher.Constraint("Angle", 3, Q("120 deg")),
    Sketcher.Constraint("Radius", 2, Q("61.9576 mm")),
    Sketcher.Constraint("Radius", 6, Q("61.9517 mm")),
    Sketcher.Constraint("Radius", 10, Q("61.9457 mm")),
    Sketcher.Constraint("DistanceX", 0, 2, 0, 1, Q("22.0062 mm")),
    Sketcher.Constraint("DistanceX", 11, 2, 11, 1, Q("8.7046 mm")),
    Sketcher.Constraint("Distance", 3, Q("8.7046 mm")),
    Sketcher.Constraint("Distance", 4, Q("22.0062 mm")),
    Sketcher.Constraint("DistanceX", -1, 1, 2, 3, Q("0.0013 mm")),
    Sketcher.Constraint("DistanceY", -1, 1, 10, 3, Q("0.0018 mm")),
])
pad3 = doc.addObject("PartDesign::Pad", "Pad002")
body.addObject(pad3)
pad3.Profile = sketch3
pad3.Length = 20

sketch4 = doc.addObject("Sketcher::SketchObject", "Sketch003")
body.addObject(sketch4)
sketch4.AttachmentSupport = (doc.XZ_Plane, [""])
sketch4.MapMode = "FlatFace"
sketch4.AttachmentOffset = App.Placement(App.Vector(0, 0, 130), App.Rotation())
sketch4.addGeometry([
    Part.Circle(App.Vector(60, 0, 0), App.Vector(0, 0, 1), 8.5),
    Part.Circle(App.Vector(51.9615, -30, 0), App.Vector(0, 0, 1), 8.5),
    Part.Circle(App.Vector(51.9615, 30, 0), App.Vector(0, 0, 1), 8.5),
    Part.Circle(App.Vector(30, -51.9615, 0), App.Vector(0, 0, 1), 8.5),
    Part.Circle(App.Vector(30, 51.9615, 0), App.Vector(0, 0, 1), 8.5),
    Part.Circle(App.Vector(0, -60, 0), App.Vector(0, 0, 1), 8.5),
    Part.Circle(App.Vector(0, 60, 0), App.Vector(0, 0, 1), 8.5),
    Part.Circle(App.Vector(-30, -51.9615, 0), App.Vector(0, 0, 1), 8.5),
    Part.Circle(App.Vector(-30, 51.9615, 0), App.Vector(0, 0, 1), 8.5),
    Part.Circle(App.Vector(-51.9615, -30, 0), App.Vector(0, 0, 1), 8.5),
    Part.Circle(App.Vector(-51.9615, 30, 0), App.Vector(0, 0, 1), 8.5),
    Part.Circle(App.Vector(-60, 0, 0), App.Vector(0, 0, 1), 8.5),
], False)
sketch4.addConstraint([
    Sketcher.Constraint("Equal", 0, 1),
    Sketcher.Constraint("Equal", 1, 2),
    Sketcher.Constraint("Equal", 2, 3),
    Sketcher.Constraint("Equal", 3, 4),
    Sketcher.Constraint("Equal", 4, 5),
    Sketcher.Constraint("Equal", 5, 6),
    Sketcher.Constraint("Equal", 6, 7),
    Sketcher.Constraint("Equal", 7, 8),
    Sketcher.Constraint("Equal", 8, 9),
    Sketcher.Constraint("Equal", 9, 10),
    Sketcher.Constraint("Equal", 10, 11),
    Sketcher.Constraint("Symmetric", 5, 3, 6, 3, -1, 1),
    Sketcher.Constraint("Symmetric", 4, 3, 7, 3, -1, 1),
    Sketcher.Constraint("Symmetric", 3, 3, 8, 3, -1, 1),
    Sketcher.Constraint("Symmetric", 2, 3, 9, 3, -1, 1),
    Sketcher.Constraint("Symmetric", 1, 3, 10, 3, -1, 1),
    Sketcher.Constraint("Symmetric", 0, 3, 11, 3, -1, 1),
    Sketcher.Constraint("Symmetric", 3, 3, 7, 3, -2),
    Sketcher.Constraint("Symmetric", 1, 3, 9, 3, -2),
    Sketcher.Constraint("PointOnObject", 0, 3, -1),
    Sketcher.Constraint("PointOnObject", 5, 3, -2),
    Sketcher.Constraint("Diameter", 0, Q("17 mm")),
    Sketcher.Constraint("DistanceX", -1, 1, 0, 3, Q("60 mm")),
    Sketcher.Constraint("DistanceY", 1, 3, -1, 1, Q("30 mm")),
    Sketcher.Constraint("DistanceX", -1, 1, 3, 3, Q("30 mm")),
    Sketcher.Constraint("DistanceY", 5, 3, -1, 1, Q("60 mm")),
    Sketcher.Constraint("DistanceY", 3, 3, 4, 3, Q("103.923 mm")),
    Sketcher.Constraint("DistanceX", 9, 3, 1, 3, Q("103.923 mm")),
])
pocket1 = doc.addObject("PartDesign::Pocket", "Pocket")
body.addObject(pocket1)
pocket1.Profile = sketch4
pocket1.Length = 10
pocket1.Reversed = True
doc.recompute()

fillet = doc.addObject("PartDesign::Fillet", "Fillet")
body.addObject(fillet)
fillet.Base = (pocket1, edges_at(pocket1, [
    (-68.5, -140, 0),
    (-60.462, -140, -30),
    (-60.462, -140, 30),
    (-38.5, -140, 51.962),
    (-8.5, -140, 60),
    (21.5, -140, 51.962),
    (43.462, -140, 30),
    (51.5, -140, 0),
    (-38.5, -140, -51.962),
    (-8.5, -140, -60),
    (21.5, -140, -51.962),
    (43.462, -140, -30),
]))
fillet.Radius = 4

doc.recompute()
